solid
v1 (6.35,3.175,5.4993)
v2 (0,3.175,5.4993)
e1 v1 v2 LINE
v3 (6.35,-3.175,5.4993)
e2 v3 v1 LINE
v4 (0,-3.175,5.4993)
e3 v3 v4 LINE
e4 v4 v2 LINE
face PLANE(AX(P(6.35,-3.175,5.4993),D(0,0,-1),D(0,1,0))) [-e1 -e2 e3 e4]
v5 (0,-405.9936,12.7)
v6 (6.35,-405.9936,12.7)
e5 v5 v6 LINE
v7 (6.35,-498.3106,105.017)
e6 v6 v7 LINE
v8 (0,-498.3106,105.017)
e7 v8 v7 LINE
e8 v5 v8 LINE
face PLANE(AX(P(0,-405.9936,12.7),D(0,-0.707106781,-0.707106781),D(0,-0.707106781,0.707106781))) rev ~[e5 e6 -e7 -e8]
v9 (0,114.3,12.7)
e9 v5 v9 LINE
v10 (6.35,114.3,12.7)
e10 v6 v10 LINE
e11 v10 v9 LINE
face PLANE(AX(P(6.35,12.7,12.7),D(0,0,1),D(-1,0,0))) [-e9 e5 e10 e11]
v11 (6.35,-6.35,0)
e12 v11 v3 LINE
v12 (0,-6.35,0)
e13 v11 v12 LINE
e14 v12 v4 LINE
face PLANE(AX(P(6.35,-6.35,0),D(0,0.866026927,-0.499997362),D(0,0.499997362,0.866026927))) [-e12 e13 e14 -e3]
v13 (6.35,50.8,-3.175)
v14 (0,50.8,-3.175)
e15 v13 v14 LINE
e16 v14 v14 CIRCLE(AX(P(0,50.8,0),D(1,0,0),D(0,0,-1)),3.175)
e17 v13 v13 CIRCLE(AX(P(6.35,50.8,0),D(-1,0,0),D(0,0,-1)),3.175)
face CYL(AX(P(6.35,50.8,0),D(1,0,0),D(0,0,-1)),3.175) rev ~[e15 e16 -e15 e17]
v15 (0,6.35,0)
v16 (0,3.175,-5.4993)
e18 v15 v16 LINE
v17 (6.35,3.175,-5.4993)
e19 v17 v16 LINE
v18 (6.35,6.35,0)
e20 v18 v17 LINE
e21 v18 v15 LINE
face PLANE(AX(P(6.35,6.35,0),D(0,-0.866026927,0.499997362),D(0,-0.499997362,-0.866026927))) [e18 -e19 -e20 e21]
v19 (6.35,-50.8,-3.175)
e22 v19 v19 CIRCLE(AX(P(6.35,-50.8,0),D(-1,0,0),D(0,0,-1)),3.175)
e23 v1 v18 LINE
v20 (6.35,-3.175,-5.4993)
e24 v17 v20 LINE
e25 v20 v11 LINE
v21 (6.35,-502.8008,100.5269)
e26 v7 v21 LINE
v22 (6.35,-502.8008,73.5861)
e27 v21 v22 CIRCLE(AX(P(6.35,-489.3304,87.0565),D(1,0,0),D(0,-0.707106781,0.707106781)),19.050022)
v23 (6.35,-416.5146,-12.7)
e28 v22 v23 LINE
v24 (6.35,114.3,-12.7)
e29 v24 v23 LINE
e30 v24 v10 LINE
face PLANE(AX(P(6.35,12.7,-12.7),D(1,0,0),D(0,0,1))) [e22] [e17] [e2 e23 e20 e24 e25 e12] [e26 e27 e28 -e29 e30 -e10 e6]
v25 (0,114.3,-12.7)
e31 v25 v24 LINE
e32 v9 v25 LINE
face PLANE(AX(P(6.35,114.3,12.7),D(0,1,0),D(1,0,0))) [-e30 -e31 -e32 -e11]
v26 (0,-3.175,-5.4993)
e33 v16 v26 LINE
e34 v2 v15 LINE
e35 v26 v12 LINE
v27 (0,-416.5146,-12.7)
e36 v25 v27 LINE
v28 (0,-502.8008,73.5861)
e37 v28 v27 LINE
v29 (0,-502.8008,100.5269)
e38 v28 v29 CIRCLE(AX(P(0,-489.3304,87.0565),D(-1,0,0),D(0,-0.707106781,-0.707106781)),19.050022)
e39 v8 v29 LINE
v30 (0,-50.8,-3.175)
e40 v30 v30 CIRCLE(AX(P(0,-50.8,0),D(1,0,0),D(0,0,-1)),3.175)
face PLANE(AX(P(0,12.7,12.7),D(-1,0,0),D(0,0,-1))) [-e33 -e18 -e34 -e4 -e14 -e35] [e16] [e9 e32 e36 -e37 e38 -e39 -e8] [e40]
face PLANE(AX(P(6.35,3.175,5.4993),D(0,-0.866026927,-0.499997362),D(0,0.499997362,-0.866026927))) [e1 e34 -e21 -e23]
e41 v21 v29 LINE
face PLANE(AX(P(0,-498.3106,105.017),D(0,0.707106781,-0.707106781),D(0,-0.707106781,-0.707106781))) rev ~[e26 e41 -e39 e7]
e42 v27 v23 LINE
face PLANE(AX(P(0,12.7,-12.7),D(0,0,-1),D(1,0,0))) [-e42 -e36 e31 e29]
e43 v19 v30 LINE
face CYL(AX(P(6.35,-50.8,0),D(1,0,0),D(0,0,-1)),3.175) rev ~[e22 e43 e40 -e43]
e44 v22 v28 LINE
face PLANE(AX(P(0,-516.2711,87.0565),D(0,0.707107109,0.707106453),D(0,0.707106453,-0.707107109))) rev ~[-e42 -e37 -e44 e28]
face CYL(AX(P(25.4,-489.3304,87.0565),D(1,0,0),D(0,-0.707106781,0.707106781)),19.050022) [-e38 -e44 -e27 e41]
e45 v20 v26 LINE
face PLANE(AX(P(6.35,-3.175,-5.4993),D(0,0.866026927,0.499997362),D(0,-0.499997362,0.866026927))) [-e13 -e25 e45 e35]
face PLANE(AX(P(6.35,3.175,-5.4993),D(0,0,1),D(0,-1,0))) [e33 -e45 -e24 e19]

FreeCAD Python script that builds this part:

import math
import FreeCAD as App
import Part
import Sketcher
from FreeCAD import Vector
Q = App.Units.Quantity

doc = App.newDocument("Part")
body = doc.addObject("PartDesign::Body", "Body")

# Sketch on YZ plane
sketch1 = doc.addObject("Sketcher::SketchObject", "Sketch")
body.addObject(sketch1)
sketch1.AttachmentSupport = (doc.YZ_Plane, [""])
sketch1.MapMode = "FlatFace"
sketch1.addGeometry([
    Part.LineSegment(Vector(12.7, -12.7, 0), Vector(12.7, 0, 0)),  # 0
    Part.LineSegment(Vector(12.7, 0, 0), Vector(12.7, 12.7, 0)),  # 1
    Part.LineSegment(Vector(12.7, 12.7, 0), Vector(-406, 12.7, 0)),  # 2
    Part.LineSegment(Vector(-406, 12.7, 0), Vector(-498.3, 105, 0)),  # 3
    Part.LineSegment(Vector(-498.3, 105, 0), Vector(-516.3, 87.1, 0)),  # 4
    Part.LineSegment(Vector(-516.3, 87.1, 0), Vector(-416.5, -12.7, 0)),  # 5
    Part.LineSegment(Vector(-416.5, -12.7, 0), Vector(12.7, -12.7, 0)),  # 6
    Part.Circle(Vector(0, 0, 0), Vector(0, 0, 1), 3.2),  # 7
], False)
sketch1.addConstraint([
    Sketcher.Constraint("Coincident", 0, 2, 1, 1),
    Sketcher.Constraint("Coincident", 1, 2, 2, 1),
    Sketcher.Constraint("Coincident", 2, 2, 3, 1),
    Sketcher.Constraint("Coincident", 3, 2, 4, 1),
    Sketcher.Constraint("Coincident", 4, 2, 5, 1),
    Sketcher.Constraint("Coincident", 5, 2, 6, 1),
    Sketcher.Constraint("Coincident", 6, 2, 0, 1),
    Sketcher.Constraint("Vertical", 0),
    Sketcher.Constraint("Vertical", 1),
    Sketcher.Constraint("Horizontal", 2),
    Sketcher.Constraint("Horizontal", 6),
    Sketcher.Constraint("Coincident", 7, 3, -1, 1),
    Sketcher.Constraint("PointOnObject", 0, 2, -1),
    Sketcher.Constraint("Perpendicular", 3, 4),
    Sketcher.Constraint("Perpendicular", 4, 5),
    Sketcher.Constraint("Equal", 0, 1),
    Sketcher.Constraint("Diameter", 7, Q("0.25 in")),
    Sketcher.Constraint("Distance", 4, Q("1 in")),
    Sketcher.Constraint("DistanceY", 0, 1, 0, 2, Q("0.5 in")),
    Sketcher.Constraint("Angle", 3, Q("135 deg")),
    Sketcher.Constraint("DistanceX", -1, 1, 0, 2, Q("0.5 in")),
    Sketcher.Constraint("Distance", 3, Q("5.14 in")),
    Sketcher.Constraint("DistanceX", 2, 2, 2, 1, Q("16.484 in")),
])
pad1 = doc.addObject("PartDesign::Pad", "Pad")
body.addObject(pad1)
pad1.Profile = sketch1
pad1.Length = Q("1 in")

# Sketch on YZ plane
sketch2 = doc.addObject("Sketcher::SketchObject", "Sketch001")
body.addObject(sketch2)
sketch2.AttachmentSupport = (doc.YZ_Plane, [""])
sketch2.MapMode = "FlatFace"
sketch2.AttachmentOffset = App.Placement(Vector(0, 0, 1 * 25.4), App.Rotation())
sketch2.addGeometry([
    Part.LineSegment(Vector(-503, 101, 0), Vector(-516, 87, 0)),
    Part.LineSegment(Vector(-516, 87, 0), Vector(-503, 74, 0)),
    Part.ArcOfCircle(Part.Circle(Vector(-489, 87, 0), Vector(0, 0, 1), 19), math.radians(135), math.radians(225)),
], False)
sketch2.addConstraint([
    Sketcher.Constraint("Coincident", 0, 2, 1, 1),
    Sketcher.Constraint("Tangent", 1, 2, 2, 2),
    Sketcher.Constraint("Tangent", 2, 1, 0, 1),
    Sketcher.Constraint("Perpendicular", 0, 1),
    Sketcher.Constraint("Horizontal", 2, 3, 0, 2),
    Sketcher.Constraint("Radius", 2, Q("0.75 in")),
    Sketcher.Constraint("DistanceX", 1, 2, -1, 1, Q("19.7953 in")),
    Sketcher.Constraint("DistanceY", -1, 1, 1, 2, Q("2.8971 in")),
])
pocket1 = doc.addObject("PartDesign::Pocket", "Pocket")
body.addObject(pocket1)
pocket1.Profile = sketch2
pocket1.Length = Q("1 in")

# Sketch on XZ plane
sketch3 = doc.addObject("Sketcher::SketchObject", "Sketch002")
body.addObject(sketch3)
sketch3.AttachmentSupport = (doc.XZ_Plane, [""])
sketch3.MapMode = "FlatFace"
sketch3.AttachmentOffset = App.Placement(Vector(0, 0, -0.5 * 25.4), App.Rotation())
sketch3.addGeometry([
    Part.LineSegment(Vector(25, -13, 0), Vector(0, -13, 0)),
    Part.LineSegment(Vector(0, -13, 0), Vector(0, 13, 0)),
    Part.LineSegment(Vector(0, 13, 0), Vector(25, 13, 0)),
    Part.LineSegment(Vector(25, 13, 0), Vector(25, -13, 0)),
], False)
sketch3.addConstraint([
    Sketcher.Constraint("Coincident", 0, 2, 1, 1),
    Sketcher.Constraint("Coincident", 1, 2, 2, 1),
    Sketcher.Constraint("Coincident", 2, 2, 3, 1),
    Sketcher.Constraint("Coincident", 3, 2, 0, 1),
    Sketcher.Constraint("Horizontal", 0),
    Sketcher.Constraint("Vertical", 1),
    Sketcher.Constraint("Horizontal", 2),
    Sketcher.Constraint("Vertical", 3),
    Sketcher.Constraint("Symmetric", 0, 2, 1, 2, -1, 1),
    Sketcher.Constraint("Equal", 2, 1),
    Sketcher.Constraint("DistanceX", 0, 2, 0, 1, Q("1 in")),
])
pad2 = doc.addObject("PartDesign::Pad", "Pad001")
body.addObject(pad2)
pad2.Profile = sketch3
pad2.Length = Q("5 in")
pad2.Reversed = True

# Sketch on YZ plane
sketch4 = doc.addObject("Sketcher::SketchObject", "Sketch003")
body.addObject(sketch4)
sketch4.AttachmentSupport = (doc.YZ_Plane, [""])
sketch4.MapMode = "FlatFace"
sketch4.AttachmentOffset = App.Placement(Vector(0, 0, 1 * 25.4), App.Rotation())
sketch4.addGeometry([
    Part.LineSegment(Vector(-498.3, 105, 0), Vector(-502.8, 100.5, 0)),  # 0
    Part.ArcOfCircle(Part.Circle(Vector(-489.3, 87.1, 0), Vector(0, 0, 1), 19.1), math.radians(135), math.radians(225)),  # 1
    Part.LineSegment(Vector(-502.8, 73.6, 0), Vector(-416.5, -12.7, 0)),  # 2
    Part.LineSegment(Vector(-416.5, -12.7, 0), Vector(139.7, -12.7, 0)),  # 3
    Part.LineSegment(Vector(139.7, -12.7, 0), Vector(139.7, 12.7, 0)),  # 4
    Part.LineSegment(Vector(139.7, 12.7, 0), Vector(-406, 12.7, 0)),  # 5
    Part.LineSegment(Vector(-406, 12.7, 0), Vector(-498.3, 105, 0)),  # 6
    Part.Circle(Vector(0, 0, 0), Vector(0, 0, 1), 3.2),  # 7
], False)
sketch4.addConstraint([
    Sketcher.Constraint("Tangent", 0, 2, 1, 1),
    Sketcher.Constraint("Tangent", 1, 2, 2, 1),
    Sketcher.Constraint("Coincident", 2, 2, 3, 1),
    Sketcher.Constraint("Coincident", 3, 2, 4, 1),
    Sketcher.Constraint("Coincident", 4, 2, 5, 1),
    Sketcher.Constraint("Coincident", 5, 2, 6, 1),
    Sketcher.Constraint("Coincident", 6, 2, 0, 1),
    Sketcher.Constraint("Horizontal", 3),
    Sketcher.Constraint("Vertical", 4),
    Sketcher.Constraint("Horizontal", 5),
    Sketcher.Constraint("Coincident", 7, 3, -1, 1),
    Sketcher.Constraint("Perpendicular", 0, 2),
    Sketcher.Constraint("Parallel", 2, 6),
    Sketcher.Constraint("Vertical", 0, 2, 1, 2),
    Sketcher.Constraint("Diameter", 7, Q("0.25 in")),
    Sketcher.Constraint("DistanceY", 4, 1, 4, 2, Q("1 in")),
    Sketcher.Constraint("Radius", 1, Q("0.75 in")),
    Sketcher.Constraint("DistanceY", 2, 2, -1, 1, Q("0.5 in")),
    Sketcher.Constraint("DistanceX", -1, 1, 3, 2, Q("5.5 in")),
    Sketcher.Constraint("Distance", 0, Q("0.25 in")),
    Sketcher.Constraint("Distance", 6, Q("5.14 in")),
    Sketcher.Constraint("DistanceX", 5, 2, 5, 1, Q("21.484 in")),
])
pocket2 = doc.addObject("PartDesign::Pocket", "Pocket001")
body.addObject(pocket2)
pocket2.Profile = sketch4
pocket2.Length = Q("0.75 in")

# Sketch on YZ plane
sketch5 = doc.addObject("Sketcher::SketchObject", "Sketch004")
body.addObject(sketch5)
sketch5.AttachmentSupport = (doc.YZ_Plane, [""])
sketch5.MapMode = "FlatFace"
sketch5.AttachmentOffset = App.Placement(Vector(0, 0, 0.25 * 25.4), App.Rotation())
sketch5.addGeometry([
    Part.LineSegment(Vector(140, -13, 0), Vector(140, 13, 0)),
    Part.LineSegment(Vector(140, 13, 0), Vector(13, 13, 0)),
    Part.LineSegment(Vector(13, 13, 0), Vector(13, -13, 0)),
    Part.LineSegment(Vector(13, -13, 0), Vector(140, -13, 0)),
], False)
sketch5.addConstraint([
    Sketcher.Constraint("Coincident", 0, 2, 1, 1),
    Sketcher.Constraint("Coincident", 1, 2, 2, 1),
    Sketcher.Constraint("Coincident", 2, 2, 3, 1),
    Sketcher.Constraint("Coincident", 3, 2, 0, 1),
    Sketcher.Constraint("Vertical", 0),
    Sketcher.Constraint("Horizontal", 1),
    Sketcher.Constraint("Vertical", 2),
    Sketcher.Constraint("Horizontal", 3),
    Sketcher.Constraint("DistanceX", 1, 2, 1, 1, Q("5 in")),
    Sketcher.Constraint("DistanceY", 0, 1, 0, 2, Q("1 in")),
    Sketcher.Constraint("DistanceX", -1, 1, 0, 2, Q("5.5 in")),
    Sketcher.Constraint("DistanceY", -1, 1, 0, 2, Q("0.5 in")),
])
pocket3 = doc.addObject("PartDesign::Pocket", "Pocket002")
body.addObject(pocket3)
pocket3.Profile = sketch5
pocket3.Length = Q("5 in")

# Sketch on XZ plane
sketch6 = doc.addObject("Sketcher::SketchObject", "Sketch005")
body.addObject(sketch6)
sketch6.AttachmentSupport = (doc.XZ_Plane, [""])
sketch6.MapMode = "FlatFace"
sketch6.AttachmentOffset = App.Placement(Vector(0, 0, -0.5 * 25.4), App.Rotation())
sketch6.addGeometry([
    Part.LineSegment(Vector(0, -13, 0), Vector(0, 13, 0)),
    Part.LineSegment(Vector(0, 13, 0), Vector(6, 13, 0)),
    Part.LineSegment(Vector(6, 13, 0), Vector(6, -13, 0)),
    Part.LineSegment(Vector(6, -13, 0), Vector(0, -13, 0)),
], False)
sketch6.addConstraint([
    Sketcher.Constraint("Coincident", 0, 2, 1, 1),
    Sketcher.Constraint("Coincident", 1, 2, 2, 1),
    Sketcher.Constraint("Coincident", 2, 2, 3, 1),
    Sketcher.Constraint("Coincident", 3, 2, 0, 1),
    Sketcher.Constraint("Vertical", 0),
    Sketcher.Constraint("Horizontal", 1),
    Sketcher.Constraint("Vertical", 2),
    Sketcher.Constraint("Horizontal", 3),
    Sketcher.Constraint("Symmetric", 0, 2, 3, 2, -1, 1),
    Sketcher.Constraint("DistanceY", 0, 1, 0, 2, Q("1 in")),
    Sketcher.Constraint("DistanceX", 1, 1, 1, 2, Q("0.25 in")),
])
pad3 = doc.addObject("PartDesign::Pad", "Pad002")
body.addObject(pad3)
pad3.Profile = sketch6
pad3.Length = Q("4 in")
pad3.Reversed = True

# Sketch on YZ plane
sketch7 = doc.addObject("Sketcher::SketchObject", "Sketch006")
body.addObject(sketch7)
sketch7.AttachmentSupport = (doc.YZ_Plane, [""])
sketch7.MapMode = "FlatFace"
sketch7.AttachmentOffset = App.Placement(Vector(0, 0, 0.25 * 25.4), App.Rotation())
sketch7.addGeometry([
    Part.Circle(Vector(0, 0, 0), Vector(0, 0, 1), 6.3),
    Part.Circle(Vector(0, 0, 0), Vector(0, 0, 1), 3.2),
], False)
sketch7.addConstraint([
    Sketcher.Constraint("Coincident", 0, 3, -1, 1),
    Sketcher.Constraint("Coincident", 1, 3, -1, 1),
    Sketcher.Constraint("Diameter", 0, Q("0.5 in")),
    Sketcher.Constraint("Diameter", 1, Q("0.25 in")),
])
pocket4 = doc.addObject("PartDesign::Pocket", "Pocket003")
body.addObject(pocket4)
pocket4.Profile = sketch7
pocket4.Length = Q("1 in")

# Sketch on YZ plane
sketch8 = doc.addObject("Sketcher::SketchObject", "Sketch007")
body.addObject(sketch8)
sketch8.AttachmentSupport = (doc.YZ_Plane, [""])
sketch8.MapMode = "FlatFace"
sketch8.AttachmentOffset = App.Placement(Vector(0, 0, 0.25 * 25.4), App.Rotation())
sketch8.addGeometry([
    Part.ArcOfCircle(Part.Circle(Vector(0, 0, 0), Vector(0, 0, 1), 6), math.radians(-120), math.radians(-60)),  # 0
    Part.LineSegment(Vector(-3, -5, 0), Vector(3, -5, 0)),  # 1
    Part.LineSegment(Vector(6, 0, 0), Vector(3, -5, 0)),  # 2
    Part.ArcOfCircle(Part.Circle(Vector(0, 0, 0), Vector(0, 0, 1), 6), math.radians(-60), math.radians(0)),  # 3
    Part.ArcOfCircle(Part.Circle(Vector(0, 0, 0), Vector(0, 0, 1), 6), math.radians(180), math.radians(240)),  # 4
    Part.LineSegment(Vector(-6, 0, 0), Vector(-3, -5, 0)),  # 5
    Part.LineSegment(Vector(3, 5, 0), Vector(6, 0, 0)),  # 6
    Part.ArcOfCircle(Part.Circle(Vector(0, 0, 0), Vector(0, 0, 1), 6), math.radians(0), math.radians(60)),  # 7
    Part.ArcOfCircle(Part.Circle(Vector(0, 0, 0), Vector(0, 0, 1), 6), math.radians(120), math.radians(180)),  # 8
    Part.LineSegment(Vector(-6, 0, 0), Vector(-3, 5, 0)),  # 9
    Part.LineSegment(Vector(-3, 5, 0), Vector(3, 5, 0)),  # 10
    Part.ArcOfCircle(Part.Circle(Vector(0, 0, 0), Vector(0, 0, 1), 6), math.radians(60), math.radians(120)),  # 11
], False)
sketch8.addConstraint([
    Sketcher.Constraint("Coincident", 0, 1, 1, 1),
    Sketcher.Constraint("Coincident", 1, 2, 0, 2),
    Sketcher.Constraint("Coincident", 2, 1, 3, 2),
    Sketcher.Constraint("Coincident", 3, 1, 2, 2),
    Sketcher.Constraint("Coincident", 4, 1, 5, 1),
    Sketcher.Constraint("Coincident", 5, 2, 4, 2),
    Sketcher.Constraint("Coincident", 6, 1, 7, 2),
    Sketcher.Constraint("Coincident", 7, 1, 6, 2),
    Sketcher.Constraint("Coincident", 8, 1, 9, 2),
    Sketcher.Constraint("Coincident", 9, 1, 8, 2),
    Sketcher.Constraint("Coincident", 10, 1, 11, 2),
    Sketcher.Constraint("Coincident", 11, 1, 10, 2),
    Sketcher.Constraint("Horizontal", 1),
    Sketcher.Constraint("Horizontal", 10),
    Sketcher.Constraint("Coincident", 0, 3, -1, 1),
    Sketcher.Constraint("Coincident", 3, 3, -1, 1),
    Sketcher.Constraint("Coincident", 4, 3, -1, 1),
    Sketcher.Constraint("Coincident", 7, 3, -1, 1),
    Sketcher.Constraint("Coincident", 8, 3, -1, 1),
    Sketcher.Constraint("Coincident", 11, 3, -1, 1),
    Sketcher.Constraint("Coincident", 3, 1, 1, 2),
    Sketcher.Constraint("Coincident", 5, 2, 0, 1),
    Sketcher.Constraint("Coincident", 7, 1, 2, 1),
    Sketcher.Constraint("Coincident", 9, 1, 4, 1),
    Sketcher.Constraint("Coincident", 10, 1, 8, 1),
    Sketcher.Constraint("PointOnObject", 2, 1, -1),
    Sketcher.Constraint("PointOnObject", 4, 1, -1),
    Sketcher.Constraint("Parallel", 5, 6),
    Sketcher.Constraint("Parallel", 2, 9),
    Sketcher.Constraint("Radius", 0, Q("0.25 in")),
    Sketcher.Constraint("Angle", 2, Q("-119.9998 deg")),
])
pad4 = doc.addObject("PartDesign::Pad", "Pad003")
body.addObject(pad4)
pad4.Profile = sketch8
pad4.Length = Q("0.25 in")
pad4.Reversed = True

# Sketch on YZ plane
sketch9 = doc.addObject("Sketcher::SketchObject", "Sketch008")
body.addObject(sketch9)
sketch9.AttachmentSupport = (doc.YZ_Plane, [""])
sketch9.MapMode = "FlatFace"
sketch9.AttachmentOffset = App.Placement(Vector(0, 0, 0.25 * 25.4), App.Rotation())
sketch9.addGeometry([
    Part.Circle(Vector(50.8, 0, 0), Vector(0, 0, 1), 3.2),
    Part.Circle(Vector(-50.8, 0, 0), Vector(0, 0, 1), 3.2),
], False)
sketch9.addConstraint([
    Sketcher.Constraint("Equal", 0, 1),
    Sketcher.Constraint("Symmetric", 0, 3, 1, 3, -1, 1),
    Sketcher.Constraint("PointOnObject", 0, 3, -1),
    Sketcher.Constraint("Diameter", 0, Q("0.25 in")),
    Sketcher.Constraint("DistanceX", 1, 3, 0, 3, Q("4 in")),
])
pocket5 = doc.addObject("PartDesign::Pocket", "Pocket004")
body.addObject(pocket5)
pocket5.Profile = sketch9
pocket5.Length = Q("0.25 in")

doc.recompute()
